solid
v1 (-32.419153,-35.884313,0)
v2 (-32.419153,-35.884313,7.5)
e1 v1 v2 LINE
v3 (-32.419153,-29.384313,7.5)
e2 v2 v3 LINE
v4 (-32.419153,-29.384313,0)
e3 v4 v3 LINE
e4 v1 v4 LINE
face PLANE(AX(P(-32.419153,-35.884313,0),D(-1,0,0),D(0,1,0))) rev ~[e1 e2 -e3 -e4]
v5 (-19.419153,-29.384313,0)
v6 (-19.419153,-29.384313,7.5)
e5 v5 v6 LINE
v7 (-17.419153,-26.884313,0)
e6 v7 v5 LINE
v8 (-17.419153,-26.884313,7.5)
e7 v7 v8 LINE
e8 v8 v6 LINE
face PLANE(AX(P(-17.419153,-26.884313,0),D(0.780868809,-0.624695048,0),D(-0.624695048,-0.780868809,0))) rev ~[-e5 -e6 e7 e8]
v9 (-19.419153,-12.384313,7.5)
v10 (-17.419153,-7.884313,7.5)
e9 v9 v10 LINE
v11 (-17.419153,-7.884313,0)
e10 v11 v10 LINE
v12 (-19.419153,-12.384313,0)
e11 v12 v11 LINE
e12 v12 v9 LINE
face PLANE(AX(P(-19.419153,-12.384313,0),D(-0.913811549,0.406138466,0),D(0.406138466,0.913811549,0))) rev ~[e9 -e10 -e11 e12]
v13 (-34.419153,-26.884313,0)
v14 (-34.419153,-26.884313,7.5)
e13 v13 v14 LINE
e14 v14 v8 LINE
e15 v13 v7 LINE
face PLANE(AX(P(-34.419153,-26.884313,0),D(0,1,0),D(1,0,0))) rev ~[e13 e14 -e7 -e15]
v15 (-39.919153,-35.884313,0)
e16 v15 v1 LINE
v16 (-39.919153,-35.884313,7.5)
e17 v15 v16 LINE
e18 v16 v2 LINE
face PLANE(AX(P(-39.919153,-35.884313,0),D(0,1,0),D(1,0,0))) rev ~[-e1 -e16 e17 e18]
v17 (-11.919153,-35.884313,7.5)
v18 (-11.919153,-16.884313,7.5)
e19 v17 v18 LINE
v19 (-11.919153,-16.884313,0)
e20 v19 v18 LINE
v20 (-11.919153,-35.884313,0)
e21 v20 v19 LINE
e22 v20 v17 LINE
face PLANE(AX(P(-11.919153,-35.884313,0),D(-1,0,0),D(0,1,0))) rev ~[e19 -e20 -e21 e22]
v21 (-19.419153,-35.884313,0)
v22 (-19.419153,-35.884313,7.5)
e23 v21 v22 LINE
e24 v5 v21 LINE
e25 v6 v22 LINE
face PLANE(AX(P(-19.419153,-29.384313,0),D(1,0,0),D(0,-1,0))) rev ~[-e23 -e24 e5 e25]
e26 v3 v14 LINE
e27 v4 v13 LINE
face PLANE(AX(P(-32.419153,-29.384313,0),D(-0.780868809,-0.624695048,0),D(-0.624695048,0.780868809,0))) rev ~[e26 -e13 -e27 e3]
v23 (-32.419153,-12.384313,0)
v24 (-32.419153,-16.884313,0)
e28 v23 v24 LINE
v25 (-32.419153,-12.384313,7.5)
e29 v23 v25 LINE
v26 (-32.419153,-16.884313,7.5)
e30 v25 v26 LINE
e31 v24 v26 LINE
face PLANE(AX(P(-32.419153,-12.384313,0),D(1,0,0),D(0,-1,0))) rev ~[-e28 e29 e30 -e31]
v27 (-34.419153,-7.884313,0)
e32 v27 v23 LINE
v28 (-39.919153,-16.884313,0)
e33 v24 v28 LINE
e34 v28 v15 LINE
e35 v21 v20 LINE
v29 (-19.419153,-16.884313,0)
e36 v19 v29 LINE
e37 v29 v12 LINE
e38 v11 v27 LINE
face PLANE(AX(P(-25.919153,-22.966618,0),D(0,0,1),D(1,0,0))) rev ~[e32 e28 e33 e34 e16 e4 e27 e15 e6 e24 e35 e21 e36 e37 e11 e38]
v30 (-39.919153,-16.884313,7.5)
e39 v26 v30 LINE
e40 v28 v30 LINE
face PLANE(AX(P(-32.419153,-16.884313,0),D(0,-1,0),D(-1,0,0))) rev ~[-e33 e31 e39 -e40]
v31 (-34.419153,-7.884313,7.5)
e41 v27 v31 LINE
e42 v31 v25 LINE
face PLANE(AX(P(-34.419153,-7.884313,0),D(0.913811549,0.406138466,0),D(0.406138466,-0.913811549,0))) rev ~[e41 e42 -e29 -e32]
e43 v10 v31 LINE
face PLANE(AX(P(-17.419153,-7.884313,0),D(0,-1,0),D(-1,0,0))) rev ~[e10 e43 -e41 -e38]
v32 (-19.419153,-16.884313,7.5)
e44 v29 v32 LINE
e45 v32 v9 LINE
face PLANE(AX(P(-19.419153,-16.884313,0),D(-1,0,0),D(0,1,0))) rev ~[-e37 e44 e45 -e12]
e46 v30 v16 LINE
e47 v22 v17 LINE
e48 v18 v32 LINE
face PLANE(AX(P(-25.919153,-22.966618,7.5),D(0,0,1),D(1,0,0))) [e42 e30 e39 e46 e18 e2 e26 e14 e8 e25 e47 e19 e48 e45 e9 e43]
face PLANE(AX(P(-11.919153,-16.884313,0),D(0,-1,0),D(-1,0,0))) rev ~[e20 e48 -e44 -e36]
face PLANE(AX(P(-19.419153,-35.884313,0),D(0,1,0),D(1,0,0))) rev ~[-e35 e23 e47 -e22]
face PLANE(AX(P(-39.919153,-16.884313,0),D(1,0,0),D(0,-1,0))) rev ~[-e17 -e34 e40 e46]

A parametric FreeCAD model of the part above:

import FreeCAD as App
import Part
import Sketcher

V = App.Vector

doc = App.newDocument("Part")
body = doc.addObject("PartDesign::Body", "Body")

sketch1 = body.newObject("Sketcher::SketchObject", "Sketch")
sketch1.AttachmentSupport = (doc.getObject("XY_Plane"), [""])
sketch1.MapMode = "FlatFace"
sketch1.addGeometry([
    Part.LineSegment(V(-39.9, -35.9, 0), V(-32.4, -35.9, 0)),
    Part.LineSegment(V(-32.4, -35.9, 0), V(-32.4, -29.4, 0)),
    Part.LineSegment(V(-32.4, -29.4, 0), V(-34.4, -26.9, 0)),
    Part.LineSegment(V(-34.4, -26.9, 0), V(-17.4, -26.9, 0)),
    Part.LineSegment(V(-17.4, -26.9, 0), V(-19.4, -29.4, 0)),
    Part.LineSegment(V(-19.4, -29.4, 0), V(-19.4, -35.9, 0)),
    Part.LineSegment(V(-19.4, -35.9, 0), V(-11.9, -35.9, 0)),
    Part.LineSegment(V(-11.9, -35.9, 0), V(-11.9, -16.9, 0)),
    Part.LineSegment(V(-11.9, -16.9, 0), V(-19.4, -16.9, 0)),
    Part.LineSegment(V(-19.4, -16.9, 0), V(-19.4, -12.4, 0)),
    Part.LineSegment(V(-19.4, -12.4, 0), V(-17.4, -7.9, 0)),
    Part.LineSegment(V(-17.4, -7.9, 0), V(-34.4, -7.9, 0)),
    Part.LineSegment(V(-34.4, -7.9, 0), V(-32.4, -12.4, 0)),
    Part.LineSegment(V(-32.4, -12.4, 0), V(-32.4, -16.9, 0)),
    Part.LineSegment(V(-32.4, -16.9, 0), V(-39.9, -16.9, 0)),
    Part.LineSegment(V(-39.9, -16.9, 0), V(-39.9, -35.9, 0)),
], False)
sketch1.addConstraint([
    Sketcher.Constraint("Coincident", 0, 2, 1, 1),
    Sketcher.Constraint("Coincident", 1, 2, 2, 1),
    Sketcher.Constraint("Coincident", 2, 2, 3, 1),
    Sketcher.Constraint("Coincident", 3, 2, 4, 1),
    Sketcher.Constraint("Coincident", 4, 2, 5, 1),
    Sketcher.Constraint("Coincident", 5, 2, 6, 1),
    Sketcher.Constraint("Coincident", 6, 2, 7, 1),
    Sketcher.Constraint("Coincident", 7, 2, 8, 1),
    Sketcher.Constraint("Coincident", 8, 2, 9, 1),
    Sketcher.Constraint("Coincident", 9, 2, 10, 1),
    Sketcher.Constraint("Coincident", 10, 2, 11, 1),
    Sketcher.Constraint("Coincident", 11, 2, 12, 1),
    Sketcher.Constraint("Coincident", 12, 2, 13, 1),
    Sketcher.Constraint("Coincident", 13, 2, 14, 1),
    Sketcher.Constraint("Coincident", 14, 2, 15, 1),
    Sketcher.Constraint("Coincident", 15, 2, 0, 1),
    Sketcher.Constraint("Horizontal", 0),
    Sketcher.Constraint("Vertical", 1),
    Sketcher.Constraint("Horizontal", 3),
    Sketcher.Constraint("Vertical", 5),
    Sketcher.Constraint("Horizontal", 6),
    Sketcher.Constraint("Vertical", 7),
    Sketcher.Constraint("Horizontal", 8),
    Sketcher.Constraint("Vertical", 9),
    Sketcher.Constraint("Horizontal", 11),
    Sketcher.Constraint("Vertical", 13),
    Sketcher.Constraint("Horizontal", 14),
    Sketcher.Constraint("Vertical", 15),
    Sketcher.Constraint("Horizontal", 1, 2, 4, 2),
    Sketcher.Constraint("Horizontal", 0, 2, 5, 2),
    Sketcher.Constraint("Horizontal", 9, 2, 12, 2),
    Sketcher.Constraint("Horizontal", 8, 2, 13, 2),
    Sketcher.Constraint("Vertical", 5, 2, 8, 2),
    Sketcher.Constraint("Vertical", 3, 2, 10, 2),
    Sketcher.Constraint("Vertical", 2, 2, 11, 2),
    Sketcher.Constraint("Vertical", 1, 2, 12, 2),
    Sketcher.Constraint("Equal", 0, 6),
    Sketcher.Constraint("Equal", 2, 4),
    Sketcher.Constraint("DistanceX", 3, 1, 3, 2, 17.0),
    Sketcher.Constraint("DistanceY", 7, 1, 7, 2, 19.0),
    Sketcher.Constraint("DistanceX", 0, 1, 0, 2, 7.5),
    Sketcher.Constraint("DistanceY", 1, 1, 1, 2, 6.5),
    Sketcher.Constraint("DistanceY", 9, 1, 9, 2, 4.5),
    Sketcher.Constraint("DistanceX", 2, 2, 1, 2, 2.0),
    Sketcher.Constraint("DistanceY", 0, 2, 2, 2, 9.0),
    Sketcher.Constraint("DistanceY", 8, 2, 10, 2, 9.0),
    Sketcher.Constraint("DistanceX", 0, 2, -1, 1, 32.419153),
    Sketcher.Constraint("DistanceY", 0, 2, -1, 1, 35.884313),
])
pad1 = body.newObject("PartDesign::Pad", "Pad")
pad1.Profile = sketch1
pad1.Length = 7.5

doc.recompute()
